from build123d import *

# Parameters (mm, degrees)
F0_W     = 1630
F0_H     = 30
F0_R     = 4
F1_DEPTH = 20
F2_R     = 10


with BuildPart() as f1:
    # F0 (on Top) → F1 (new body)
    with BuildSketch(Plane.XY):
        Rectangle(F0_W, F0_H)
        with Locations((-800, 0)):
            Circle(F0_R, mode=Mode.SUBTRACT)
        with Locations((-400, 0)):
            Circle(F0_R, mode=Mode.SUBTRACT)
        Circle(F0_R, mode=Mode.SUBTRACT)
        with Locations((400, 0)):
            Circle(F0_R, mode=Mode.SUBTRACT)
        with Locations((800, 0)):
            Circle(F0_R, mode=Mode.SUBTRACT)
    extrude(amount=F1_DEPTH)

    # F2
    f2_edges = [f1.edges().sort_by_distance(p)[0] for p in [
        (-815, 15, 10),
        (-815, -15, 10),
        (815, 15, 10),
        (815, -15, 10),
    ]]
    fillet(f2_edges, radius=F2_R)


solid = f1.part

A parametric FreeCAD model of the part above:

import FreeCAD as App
import Part
import Sketcher
from FreeCAD import Vector
Q = App.Units.Quantity


def edges_at(feature, points):
    """Names of the edges that pass closest to the given points."""
    edges = feature.Shape.Edges
    near = lambda p: min(range(len(edges)), key=lambda i: edges[i].distToShape(Part.Vertex(*p))[0])
    return sorted({f"Edge{near(p) + 1}" for p in points})


def add_polygon(sketch, points):
    """Adds a closed chain of lines whose ends are joined by coincident constraints."""
    first, n = sketch.GeometryCount, len(points)
    for a, b in zip(points, points[1:] + points[:1]):
        sketch.addGeometry(Part.LineSegment(App.Vector(*a, 0), App.Vector(*b, 0)), False)
    for i in range(n):
        sketch.addConstraint(Sketcher.Constraint("Coincident", first + i, 2, first + (i + 1) % n, 1))

doc = App.newDocument("Part")
body = doc.addObject("PartDesign::Body", "Body")

# Sketch on XY plane
sketch1 = body.newObject("Sketcher::SketchObject", "Sketch")
sketch1.AttachmentSupport = (doc.getObject("XY_Plane"), [""])
sketch1.MapMode = "FlatFace"
add_polygon(sketch1, [(-815, 15), (-815, -15), (815, -15), (815, 15)])  # lines 0-3
sketch1.addGeometry(Part.Circle(Vector(-800, 0, 0), Vector(0, 0, 1), 4), False)  # 4
sketch1.addGeometry(Part.Circle(Vector(-400, 0, 0), Vector(0, 0, 1), 4), False)  # 5
sketch1.addGeometry(Part.Circle(Vector(0, 0, 0), Vector(0, 0, 1), 4), False)  # 6
sketch1.addGeometry(Part.Circle(Vector(400, 0, 0), Vector(0, 0, 1), 4), False)  # 7
sketch1.addGeometry(Part.Circle(Vector(800, 0, 0), Vector(0, 0, 1), 4), False)  # 8
sketch1.addConstraint([
    Sketcher.Constraint("Vertical", 0),
    Sketcher.Constraint("Horizontal", 1),
    Sketcher.Constraint("Vertical", 2),
    Sketcher.Constraint("Horizontal", 3),
    Sketcher.Constraint("Coincident", 6, 3, -1, 1),
    Sketcher.Constraint("Equal", 4, 5),
    Sketcher.Constraint("Equal", 5, 6),
    Sketcher.Constraint("Equal", 6, 7),
    Sketcher.Constraint("Equal", 7, 8),
    Sketcher.Constraint("Symmetric", 5, 3, 7, 3, -1, 1),
    Sketcher.Constraint("Symmetric", 4, 3, 8, 3, -1, 1),
    Sketcher.Constraint("Symmetric", 0, 2, 2, 2, -1, 1),
    Sketcher.Constraint("PointOnObject", 4, 3, -1),
    Sketcher.Constraint("PointOnObject", 5, 3, -1),
    Sketcher.Constraint("Diameter", 4, Q("8 mm")),
    Sketcher.Constraint("DistanceX", 1, 1, 1, 2, Q("1630 mm")),
    Sketcher.Constraint("DistanceY", 0, 2, 0, 1, Q("30 mm")),
    Sketcher.Constraint("DistanceX", 4, 3, -1, 1, Q("800 mm")),
    Sketcher.Constraint("DistanceX", 5, 3, -1, 1, Q("400 mm")),
])
pad1 = body.newObject("PartDesign::Pad", "Pad")
pad1.Profile = sketch1
pad1.Length = 20
doc.recompute()

fillet = body.newObject("PartDesign::Fillet", "Fillet")
fillet.Base = (pad1, edges_at(pad1, [
    (-815, 15, 10),
    (-815, -15, 10),
    (815, 15, 10),
    (815, -15, 10),
]))
fillet.Radius = 10

doc.recompute()
